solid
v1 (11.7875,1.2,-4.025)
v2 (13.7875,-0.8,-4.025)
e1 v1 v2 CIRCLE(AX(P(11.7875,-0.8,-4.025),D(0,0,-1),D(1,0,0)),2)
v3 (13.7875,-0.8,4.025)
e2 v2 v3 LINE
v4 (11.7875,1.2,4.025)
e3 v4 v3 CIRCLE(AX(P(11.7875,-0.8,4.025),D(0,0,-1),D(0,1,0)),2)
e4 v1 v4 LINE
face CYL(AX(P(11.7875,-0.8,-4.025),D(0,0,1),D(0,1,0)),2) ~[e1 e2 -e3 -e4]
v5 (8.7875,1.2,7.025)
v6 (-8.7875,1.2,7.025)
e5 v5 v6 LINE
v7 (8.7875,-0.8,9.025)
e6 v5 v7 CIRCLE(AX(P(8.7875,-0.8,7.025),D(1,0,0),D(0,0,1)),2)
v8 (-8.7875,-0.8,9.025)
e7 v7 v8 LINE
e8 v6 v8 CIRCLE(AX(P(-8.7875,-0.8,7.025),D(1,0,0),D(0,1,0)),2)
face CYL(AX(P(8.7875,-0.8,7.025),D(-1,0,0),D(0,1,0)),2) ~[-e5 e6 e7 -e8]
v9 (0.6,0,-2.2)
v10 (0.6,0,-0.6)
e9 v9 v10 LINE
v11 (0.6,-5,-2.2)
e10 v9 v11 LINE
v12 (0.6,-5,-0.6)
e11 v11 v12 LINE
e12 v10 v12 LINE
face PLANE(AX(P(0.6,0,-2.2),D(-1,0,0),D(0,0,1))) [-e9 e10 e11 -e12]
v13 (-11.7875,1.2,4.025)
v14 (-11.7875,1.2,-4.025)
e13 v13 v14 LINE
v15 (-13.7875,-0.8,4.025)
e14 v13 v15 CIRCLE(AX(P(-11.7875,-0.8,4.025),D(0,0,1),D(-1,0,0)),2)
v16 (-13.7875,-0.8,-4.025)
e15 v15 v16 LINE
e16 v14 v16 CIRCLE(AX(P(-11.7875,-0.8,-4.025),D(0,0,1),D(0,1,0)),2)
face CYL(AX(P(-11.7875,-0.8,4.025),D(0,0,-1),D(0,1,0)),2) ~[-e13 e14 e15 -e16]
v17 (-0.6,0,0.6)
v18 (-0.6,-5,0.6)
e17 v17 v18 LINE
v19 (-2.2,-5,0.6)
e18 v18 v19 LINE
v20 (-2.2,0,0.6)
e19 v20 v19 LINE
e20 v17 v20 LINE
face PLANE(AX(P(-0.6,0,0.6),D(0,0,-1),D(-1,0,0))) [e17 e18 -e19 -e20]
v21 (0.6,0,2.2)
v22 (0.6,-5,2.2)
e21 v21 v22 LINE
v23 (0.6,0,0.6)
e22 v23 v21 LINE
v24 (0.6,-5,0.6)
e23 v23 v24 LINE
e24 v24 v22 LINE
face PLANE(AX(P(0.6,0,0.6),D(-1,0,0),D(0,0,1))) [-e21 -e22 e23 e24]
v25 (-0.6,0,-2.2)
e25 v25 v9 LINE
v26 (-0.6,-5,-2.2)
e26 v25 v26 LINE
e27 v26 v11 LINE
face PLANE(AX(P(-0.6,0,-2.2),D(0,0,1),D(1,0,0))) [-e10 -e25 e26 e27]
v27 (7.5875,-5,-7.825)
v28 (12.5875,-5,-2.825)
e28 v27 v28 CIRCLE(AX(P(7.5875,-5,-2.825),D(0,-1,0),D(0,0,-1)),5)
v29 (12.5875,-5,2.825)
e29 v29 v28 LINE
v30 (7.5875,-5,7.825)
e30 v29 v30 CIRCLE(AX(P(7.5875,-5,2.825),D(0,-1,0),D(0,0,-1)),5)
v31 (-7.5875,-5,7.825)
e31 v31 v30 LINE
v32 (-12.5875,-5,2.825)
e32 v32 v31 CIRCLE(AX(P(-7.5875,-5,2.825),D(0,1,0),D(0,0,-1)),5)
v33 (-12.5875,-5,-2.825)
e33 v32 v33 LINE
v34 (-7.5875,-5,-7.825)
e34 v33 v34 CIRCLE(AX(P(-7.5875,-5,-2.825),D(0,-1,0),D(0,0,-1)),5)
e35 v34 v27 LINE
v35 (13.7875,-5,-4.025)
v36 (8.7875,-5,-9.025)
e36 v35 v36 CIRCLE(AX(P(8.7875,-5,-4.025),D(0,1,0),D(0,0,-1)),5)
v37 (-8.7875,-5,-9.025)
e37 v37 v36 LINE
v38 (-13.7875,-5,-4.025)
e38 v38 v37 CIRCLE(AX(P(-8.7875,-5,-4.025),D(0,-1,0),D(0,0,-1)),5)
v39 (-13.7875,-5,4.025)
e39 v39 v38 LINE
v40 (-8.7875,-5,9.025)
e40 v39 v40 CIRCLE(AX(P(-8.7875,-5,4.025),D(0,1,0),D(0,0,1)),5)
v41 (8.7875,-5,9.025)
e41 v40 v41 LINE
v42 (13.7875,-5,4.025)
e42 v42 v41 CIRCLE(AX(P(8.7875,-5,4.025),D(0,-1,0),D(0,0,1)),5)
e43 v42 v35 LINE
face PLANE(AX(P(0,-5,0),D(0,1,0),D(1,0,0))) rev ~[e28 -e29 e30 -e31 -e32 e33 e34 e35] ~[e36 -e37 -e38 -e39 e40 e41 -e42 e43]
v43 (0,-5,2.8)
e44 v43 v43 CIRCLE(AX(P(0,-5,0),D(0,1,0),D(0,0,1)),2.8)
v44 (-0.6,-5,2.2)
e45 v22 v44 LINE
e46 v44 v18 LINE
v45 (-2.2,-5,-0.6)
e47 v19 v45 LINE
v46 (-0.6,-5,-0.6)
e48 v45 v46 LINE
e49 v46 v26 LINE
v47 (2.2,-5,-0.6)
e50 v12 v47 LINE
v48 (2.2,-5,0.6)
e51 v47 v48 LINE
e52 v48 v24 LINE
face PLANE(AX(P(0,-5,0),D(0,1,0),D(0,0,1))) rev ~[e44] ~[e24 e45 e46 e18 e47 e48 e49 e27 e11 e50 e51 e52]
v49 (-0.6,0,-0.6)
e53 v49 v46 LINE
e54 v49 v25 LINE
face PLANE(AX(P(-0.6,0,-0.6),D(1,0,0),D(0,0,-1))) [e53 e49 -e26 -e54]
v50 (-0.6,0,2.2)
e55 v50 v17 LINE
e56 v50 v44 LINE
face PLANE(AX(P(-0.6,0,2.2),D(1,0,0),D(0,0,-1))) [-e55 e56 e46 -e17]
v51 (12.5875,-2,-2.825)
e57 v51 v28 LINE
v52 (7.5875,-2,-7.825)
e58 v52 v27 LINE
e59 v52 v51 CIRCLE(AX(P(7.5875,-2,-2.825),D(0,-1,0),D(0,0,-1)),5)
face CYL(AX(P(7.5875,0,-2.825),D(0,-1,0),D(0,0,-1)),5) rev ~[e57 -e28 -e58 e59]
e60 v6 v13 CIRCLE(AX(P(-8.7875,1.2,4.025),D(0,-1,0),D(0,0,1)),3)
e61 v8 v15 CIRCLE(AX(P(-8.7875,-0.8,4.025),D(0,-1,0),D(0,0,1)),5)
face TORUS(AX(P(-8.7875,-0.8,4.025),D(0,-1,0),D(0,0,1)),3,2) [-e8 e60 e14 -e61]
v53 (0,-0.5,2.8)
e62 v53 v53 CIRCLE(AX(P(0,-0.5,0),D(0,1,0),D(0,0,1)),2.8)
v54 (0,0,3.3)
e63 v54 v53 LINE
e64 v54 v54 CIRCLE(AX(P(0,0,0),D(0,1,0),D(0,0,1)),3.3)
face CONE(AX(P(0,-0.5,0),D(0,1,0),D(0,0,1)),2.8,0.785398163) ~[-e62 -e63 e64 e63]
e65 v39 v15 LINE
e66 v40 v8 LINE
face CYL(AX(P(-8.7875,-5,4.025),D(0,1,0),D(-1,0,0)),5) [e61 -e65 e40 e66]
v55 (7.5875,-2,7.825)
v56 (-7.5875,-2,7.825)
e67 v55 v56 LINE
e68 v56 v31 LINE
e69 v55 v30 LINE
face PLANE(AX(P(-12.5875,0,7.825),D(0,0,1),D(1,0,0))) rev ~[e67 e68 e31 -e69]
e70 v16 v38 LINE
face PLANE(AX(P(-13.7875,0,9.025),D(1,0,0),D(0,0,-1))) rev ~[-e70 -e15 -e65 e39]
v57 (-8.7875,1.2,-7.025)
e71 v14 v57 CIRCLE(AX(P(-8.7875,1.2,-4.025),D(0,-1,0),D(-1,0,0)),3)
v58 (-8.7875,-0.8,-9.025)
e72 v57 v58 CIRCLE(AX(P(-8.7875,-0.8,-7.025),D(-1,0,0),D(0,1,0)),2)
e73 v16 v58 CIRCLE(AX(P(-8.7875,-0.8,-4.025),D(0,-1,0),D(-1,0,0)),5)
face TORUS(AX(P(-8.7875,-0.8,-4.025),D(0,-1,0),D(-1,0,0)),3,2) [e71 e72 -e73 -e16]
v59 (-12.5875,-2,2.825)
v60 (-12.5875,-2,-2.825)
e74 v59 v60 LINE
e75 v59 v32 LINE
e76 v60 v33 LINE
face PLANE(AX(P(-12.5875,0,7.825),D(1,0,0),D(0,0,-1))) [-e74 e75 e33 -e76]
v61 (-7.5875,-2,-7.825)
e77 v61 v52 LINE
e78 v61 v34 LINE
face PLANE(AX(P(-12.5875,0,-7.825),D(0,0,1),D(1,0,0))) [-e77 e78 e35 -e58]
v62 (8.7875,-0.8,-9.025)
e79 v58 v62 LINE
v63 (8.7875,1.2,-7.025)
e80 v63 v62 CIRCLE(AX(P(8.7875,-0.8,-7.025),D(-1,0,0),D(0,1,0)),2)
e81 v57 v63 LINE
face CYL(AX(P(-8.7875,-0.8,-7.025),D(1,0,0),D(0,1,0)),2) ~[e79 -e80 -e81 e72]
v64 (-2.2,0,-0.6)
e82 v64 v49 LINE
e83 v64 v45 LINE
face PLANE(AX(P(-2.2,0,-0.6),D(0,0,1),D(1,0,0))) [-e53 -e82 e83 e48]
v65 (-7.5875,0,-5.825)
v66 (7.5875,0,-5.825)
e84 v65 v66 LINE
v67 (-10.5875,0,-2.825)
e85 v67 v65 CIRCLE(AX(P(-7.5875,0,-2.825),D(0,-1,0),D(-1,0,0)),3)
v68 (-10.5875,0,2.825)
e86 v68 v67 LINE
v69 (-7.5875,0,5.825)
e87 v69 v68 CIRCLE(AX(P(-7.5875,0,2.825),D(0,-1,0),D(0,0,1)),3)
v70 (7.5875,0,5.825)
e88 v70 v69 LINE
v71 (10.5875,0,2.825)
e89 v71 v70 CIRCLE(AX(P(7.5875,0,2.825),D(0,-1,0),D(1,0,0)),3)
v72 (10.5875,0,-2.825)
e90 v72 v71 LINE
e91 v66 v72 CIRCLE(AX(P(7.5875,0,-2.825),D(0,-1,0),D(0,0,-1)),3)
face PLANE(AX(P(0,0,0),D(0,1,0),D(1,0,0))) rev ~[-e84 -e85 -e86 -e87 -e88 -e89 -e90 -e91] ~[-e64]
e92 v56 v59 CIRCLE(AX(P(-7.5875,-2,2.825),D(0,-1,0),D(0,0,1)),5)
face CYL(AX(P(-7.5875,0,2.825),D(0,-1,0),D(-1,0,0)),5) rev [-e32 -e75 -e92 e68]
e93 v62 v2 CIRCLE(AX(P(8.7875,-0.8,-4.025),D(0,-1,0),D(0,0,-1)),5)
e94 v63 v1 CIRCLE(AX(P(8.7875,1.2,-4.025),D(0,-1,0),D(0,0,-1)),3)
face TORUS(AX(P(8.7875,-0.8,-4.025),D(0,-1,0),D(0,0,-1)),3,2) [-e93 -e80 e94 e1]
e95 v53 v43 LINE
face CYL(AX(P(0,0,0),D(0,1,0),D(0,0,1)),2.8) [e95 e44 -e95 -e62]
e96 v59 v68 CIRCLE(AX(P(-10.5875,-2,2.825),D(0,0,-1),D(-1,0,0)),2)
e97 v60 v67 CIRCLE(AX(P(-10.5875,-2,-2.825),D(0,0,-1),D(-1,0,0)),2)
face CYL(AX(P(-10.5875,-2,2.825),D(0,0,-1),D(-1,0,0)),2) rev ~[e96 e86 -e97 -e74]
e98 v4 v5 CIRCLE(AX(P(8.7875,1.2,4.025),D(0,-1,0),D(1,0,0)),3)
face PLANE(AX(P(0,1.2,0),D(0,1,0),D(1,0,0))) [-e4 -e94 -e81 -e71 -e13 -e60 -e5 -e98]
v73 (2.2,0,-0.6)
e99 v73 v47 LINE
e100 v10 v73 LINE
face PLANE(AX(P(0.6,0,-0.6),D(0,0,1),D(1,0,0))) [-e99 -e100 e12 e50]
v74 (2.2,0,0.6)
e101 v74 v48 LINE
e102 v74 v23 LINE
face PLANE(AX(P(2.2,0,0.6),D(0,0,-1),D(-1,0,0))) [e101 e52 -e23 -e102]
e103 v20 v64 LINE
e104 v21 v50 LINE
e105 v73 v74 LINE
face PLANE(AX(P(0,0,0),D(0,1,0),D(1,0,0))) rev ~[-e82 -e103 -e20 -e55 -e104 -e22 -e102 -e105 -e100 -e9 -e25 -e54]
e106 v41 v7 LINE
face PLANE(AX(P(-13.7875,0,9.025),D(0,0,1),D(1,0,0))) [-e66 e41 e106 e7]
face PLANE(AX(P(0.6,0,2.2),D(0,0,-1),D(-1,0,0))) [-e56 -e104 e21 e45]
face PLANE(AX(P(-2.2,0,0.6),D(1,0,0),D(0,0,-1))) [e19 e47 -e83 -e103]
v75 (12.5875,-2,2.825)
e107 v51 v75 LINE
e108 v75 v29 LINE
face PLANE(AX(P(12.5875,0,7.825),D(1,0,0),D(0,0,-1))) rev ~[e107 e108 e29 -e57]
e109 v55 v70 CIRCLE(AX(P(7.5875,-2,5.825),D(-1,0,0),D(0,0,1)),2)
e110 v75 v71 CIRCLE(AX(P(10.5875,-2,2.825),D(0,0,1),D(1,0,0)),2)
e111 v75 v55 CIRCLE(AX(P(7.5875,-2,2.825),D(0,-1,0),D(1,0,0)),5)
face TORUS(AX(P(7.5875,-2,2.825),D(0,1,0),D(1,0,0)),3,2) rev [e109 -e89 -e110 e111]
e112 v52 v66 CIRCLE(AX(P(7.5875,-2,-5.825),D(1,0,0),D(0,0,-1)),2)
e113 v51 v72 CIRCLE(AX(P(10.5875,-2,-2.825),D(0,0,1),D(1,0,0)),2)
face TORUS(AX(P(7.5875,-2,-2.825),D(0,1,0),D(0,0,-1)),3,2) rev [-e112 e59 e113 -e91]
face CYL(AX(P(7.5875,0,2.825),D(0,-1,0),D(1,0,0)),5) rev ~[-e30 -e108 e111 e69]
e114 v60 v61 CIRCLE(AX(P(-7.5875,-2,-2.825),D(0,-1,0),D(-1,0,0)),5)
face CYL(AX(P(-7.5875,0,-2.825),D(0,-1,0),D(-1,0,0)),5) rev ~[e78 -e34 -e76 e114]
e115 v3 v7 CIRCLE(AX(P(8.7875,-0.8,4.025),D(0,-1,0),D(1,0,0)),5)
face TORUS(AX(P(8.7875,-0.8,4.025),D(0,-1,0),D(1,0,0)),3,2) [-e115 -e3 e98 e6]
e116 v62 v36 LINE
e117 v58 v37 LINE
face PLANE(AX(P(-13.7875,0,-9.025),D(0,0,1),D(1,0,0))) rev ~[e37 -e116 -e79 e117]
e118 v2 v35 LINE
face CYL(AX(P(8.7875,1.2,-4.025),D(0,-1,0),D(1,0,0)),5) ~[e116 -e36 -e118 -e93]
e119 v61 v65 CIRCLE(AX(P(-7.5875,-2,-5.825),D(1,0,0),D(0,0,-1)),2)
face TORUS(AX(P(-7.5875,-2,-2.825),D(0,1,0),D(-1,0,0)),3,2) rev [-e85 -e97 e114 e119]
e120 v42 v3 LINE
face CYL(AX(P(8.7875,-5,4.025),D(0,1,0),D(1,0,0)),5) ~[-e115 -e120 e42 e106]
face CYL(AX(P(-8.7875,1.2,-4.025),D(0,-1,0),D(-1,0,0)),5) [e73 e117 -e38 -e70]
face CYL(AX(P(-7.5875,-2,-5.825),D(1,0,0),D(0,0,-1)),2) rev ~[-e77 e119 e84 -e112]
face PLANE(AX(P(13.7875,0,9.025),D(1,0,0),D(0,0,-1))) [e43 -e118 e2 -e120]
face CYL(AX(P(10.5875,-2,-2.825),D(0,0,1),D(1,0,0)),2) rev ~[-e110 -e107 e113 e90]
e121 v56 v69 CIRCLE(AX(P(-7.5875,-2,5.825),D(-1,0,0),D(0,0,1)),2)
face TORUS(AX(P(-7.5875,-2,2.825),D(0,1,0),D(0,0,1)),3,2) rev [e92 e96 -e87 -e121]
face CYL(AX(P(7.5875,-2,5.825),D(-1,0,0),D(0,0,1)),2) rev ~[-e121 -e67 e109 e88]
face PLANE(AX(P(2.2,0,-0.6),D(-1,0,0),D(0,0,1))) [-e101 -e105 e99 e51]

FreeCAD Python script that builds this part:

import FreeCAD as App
import Part
import Sketcher
Q = App.Units.Quantity


def edges_at(feature, points):
    """Names of the edges that pass closest to the given points."""
    edges = feature.Shape.Edges
    near = lambda p: min(range(len(edges)), key=lambda i: edges[i].distToShape(Part.Vertex(*p))[0])
    return sorted({f"Edge{near(p) + 1}" for p in points})


def add_polygon(sketch, points):
    """Adds a closed chain of lines whose ends are joined by coincident constraints."""
    first, n = sketch.GeometryCount, len(points)
    for a, b in zip(points, points[1:] + points[:1]):
        sketch.addGeometry(Part.LineSegment(App.Vector(*a, 0), App.Vector(*b, 0)), False)
    for i in range(n):
        sketch.addConstraint(Sketcher.Constraint("Coincident", first + i, 2, first + (i + 1) % n, 1))

doc = App.newDocument("Part")
params = doc.addObject("Spreadsheet::Sheet", "Params")
for row, (alias, value) in enumerate([
    ("sketch1_diameter", "5.6 mm"),
    ("sketch1_width", "1.6 mm"),
    ("sketch1_width2", "1.2 mm"),
    ("pad1_length", "5 mm"),
    ("sketch2_height", "18.05 mm"),
    ("pad2_length", "1.2 mm"),
    ("sketch3_height", "18.05 mm"),
    ("sketch3_height2", "15.65 mm"),
    ("pad3_length", "5 mm"),
    ("fillet_radius", "5 mm"),
    ("fillet2_radius", "2 mm"),
    ("chamfer_size", "0.5 mm"),
], start=1):
    params.set(f"A{row}", alias)
    params.set(f"B{row}", "=" + value)
    params.setAlias(f"B{row}", alias)

body = doc.addObject("PartDesign::Body", "Body")

# Sketch on XZ plane
sketch1 = doc.addObject("Sketcher::SketchObject", "Sketch")
body.addObject(sketch1)
sketch1.AttachmentSupport = (doc.XZ_Plane, [""])
sketch1.MapMode = "FlatFace"
sketch1.addGeometry(Part.Circle(App.Vector(0, 0, 0), App.Vector(0, 0, 1), 2.8), False)  # 0
add_polygon(sketch1, [(0.6, -0.6), (2.2, -0.6), (2.2, 0.6), (0.6, 0.6), (0.6, 2.2), (-0.6, 2.2), (-0.6, 0.6), (-2.2, 0.6), (-2.2, -0.6), (-0.6, -0.6), (-0.6, -2.2), (0.6, -2.2)])  # lines 1-12
sketch1.addConstraint([
    Sketcher.Constraint("Horizontal", 1),
    Sketcher.Constraint("Vertical", 2),
    Sketcher.Constraint("Horizontal", 3),
    Sketcher.Constraint("Vertical", 4),
    Sketcher.Constraint("Horizontal", 5),
    Sketcher.Constraint("Vertical", 6),
    Sketcher.Constraint("Horizontal", 7),
    Sketcher.Constraint("Vertical", 8),
    Sketcher.Constraint("Horizontal", 9),
    Sketcher.Constraint("Vertical", 10),
    Sketcher.Constraint("Horizontal", 11),
    Sketcher.Constraint("Vertical", 12),
    Sketcher.Constraint("Coincident", 0, 3, -1, 1),
    Sketcher.Constraint("Symmetric", 1, 2, 7, 2, -1, 1),
    Sketcher.Constraint("Symmetric", 3, 2, 9, 2, -1, 1),
    Sketcher.Constraint("Symmetric", 5, 2, 11, 2, -1, 1),
    Sketcher.Constraint("Symmetric", 3, 2, 6, 2, -2),
    Sketcher.Constraint("Equal", 11, 2),
    Sketcher.Constraint("Equal", 9, 4),
    Sketcher.Constraint("Diameter", 0, Q("5.6 mm")),
    Sketcher.Constraint("DistanceX", 1, 1, 1, 2, Q("1.6 mm")),
    Sketcher.Constraint("DistanceX", 5, 2, 5, 1, Q("1.2 mm")),
])
sketch1.setExpression("Constraints[31]", "Params.sketch1_diameter")
sketch1.setExpression("Constraints[32]", "Params.sketch1_width")
sketch1.setExpression("Constraints[33]", "Params.sketch1_width2")
pad1 = doc.addObject("PartDesign::Pad", "Pad")
body.addObject(pad1)
pad1.Profile = sketch1
pad1.setExpression("Length", "Params.pad1_length")

# Sketch on XZ plane
sketch2 = doc.addObject("Sketcher::SketchObject", "Sketch001")
body.addObject(sketch2)
sketch2.AttachmentSupport = (doc.XZ_Plane, [""])
sketch2.MapMode = "FlatFace"
add_polygon(sketch2, [(-14, -9), (-14, 9), (14, 9), (14, -9)])  # lines 0-3
sketch2.addConstraint([
    Sketcher.Constraint("Vertical", 0),
    Sketcher.Constraint("Horizontal", 1),
    Sketcher.Constraint("Vertical", 2),
    Sketcher.Constraint("Horizontal", 3),
    Sketcher.Constraint("Symmetric", 0, 2, 2, 2, -1, 1),
    Sketcher.Constraint("DistanceY", 0, 1, 0, 2, Q("18.05 mm")),
    Sketcher.Constraint("DistanceX", 1, 1, 1, 2, Q("27.575 mm")),
])
sketch2.setExpression("Constraints[9]", "Params.sketch2_height")
pad2 = doc.addObject("PartDesign::Pad", "Pad001")
body.addObject(pad2)
pad2.Profile = sketch2
pad2.setExpression("Length", "Params.pad2_length")
pad2.Reversed = True

# Sketch on XZ plane
sketch3 = doc.addObject("Sketcher::SketchObject", "Sketch002")
body.addObject(sketch3)
sketch3.AttachmentSupport = (doc.XZ_Plane, [""])
sketch3.MapMode = "FlatFace"
add_polygon(sketch3, [(-14, -9), (-14, 9), (14, 9), (14, -9)])  # lines 0-3
add_polygon(sketch3, [(13, 8), (-13, 8), (-13, -8), (13, -8)])  # lines 4-7
sketch3.addConstraint([
    Sketcher.Constraint("Vertical", 0),
    Sketcher.Constraint("Horizontal", 1),
    Sketcher.Constraint("Vertical", 2),
    Sketcher.Constraint("Horizontal", 3),
    Sketcher.Constraint("Horizontal", 4),
    Sketcher.Constraint("Vertical", 5),
    Sketcher.Constraint("Horizontal", 6),
    Sketcher.Constraint("Vertical", 7),
    Sketcher.Constraint("Symmetric", 0, 2, 2, 2, -1, 1),
    Sketcher.Constraint("Symmetric", 4, 2, 6, 2, -1, 1),
    Sketcher.Constraint("DistanceY", 0, 1, 0, 2, Q("18.05 mm")),
    Sketcher.Constraint("DistanceY", 5, 2, 5, 1, Q("15.65 mm")),
    Sketcher.Constraint("DistanceX", 0, 2, 4, 2, Q("1.2 mm")),
    Sketcher.Constraint("DistanceX", 1, 1, 1, 2, Q("27.575 mm")),
])
sketch3.setExpression("Constraints[18]", "Params.sketch3_height")
sketch3.setExpression("Constraints[19]", "Params.sketch3_height2")
pad3 = doc.addObject("PartDesign::Pad", "Pad002")
body.addObject(pad3)
pad3.Profile = sketch3
pad3.setExpression("Length", "Params.pad3_length")
doc.recompute()

fillet = doc.addObject("PartDesign::Fillet", "Fillet")
body.addObject(fillet)
fillet.Base = (pad3, edges_at(pad3, [
    (13.787, -1.9, 9.025),
    (13.787, -1.9, -9.025),
    (-13.787, -1.9, -9.025),
    (-13.787, -1.9, 9.025),
    (-12.588, -2.5, 7.825),
    (-12.588, -2.5, -7.825),
    (12.588, -2.5, -7.825),
    (12.588, -2.5, 7.825),
]))
fillet.setExpression("Radius", "Params.fillet_radius")
doc.recompute()

fillet2 = doc.addObject("PartDesign::Fillet", "Fillet001")
body.addObject(fillet2)
fillet2.Base = (fillet, edges_at(fillet, [
    (-12.588, 0, 0),
    (0, 0, 7.825),
    (0, 0, -7.825),
    (12.588, 0, 0),
    (-11.123, 0, 6.361),
    (11.123, 0, 6.361),
    (11.123, 0, -6.361),
    (-11.123, 0, -6.361),
    (0, 1.2, -9.025),
    (13.787, 1.2, 0),
    (-13.787, 1.2, 0),
    (0, 1.2, 9.025),
    (-12.323, 1.2, -7.561),
    (-12.323, 1.2, 7.561),
    (12.323, 1.2, 7.561),
    (12.323, 1.2, -7.561),
]))
fillet2.setExpression("Radius", "Params.fillet2_radius")
doc.recompute()

chamfer = doc.addObject("PartDesign::Chamfer", "Chamfer")
body.addObject(chamfer)
chamfer.Base = (fillet2, edges_at(fillet2, [(0, 0, -2.8)]))
chamfer.setExpression("Size", "Params.chamfer_size")

doc.recompute()
